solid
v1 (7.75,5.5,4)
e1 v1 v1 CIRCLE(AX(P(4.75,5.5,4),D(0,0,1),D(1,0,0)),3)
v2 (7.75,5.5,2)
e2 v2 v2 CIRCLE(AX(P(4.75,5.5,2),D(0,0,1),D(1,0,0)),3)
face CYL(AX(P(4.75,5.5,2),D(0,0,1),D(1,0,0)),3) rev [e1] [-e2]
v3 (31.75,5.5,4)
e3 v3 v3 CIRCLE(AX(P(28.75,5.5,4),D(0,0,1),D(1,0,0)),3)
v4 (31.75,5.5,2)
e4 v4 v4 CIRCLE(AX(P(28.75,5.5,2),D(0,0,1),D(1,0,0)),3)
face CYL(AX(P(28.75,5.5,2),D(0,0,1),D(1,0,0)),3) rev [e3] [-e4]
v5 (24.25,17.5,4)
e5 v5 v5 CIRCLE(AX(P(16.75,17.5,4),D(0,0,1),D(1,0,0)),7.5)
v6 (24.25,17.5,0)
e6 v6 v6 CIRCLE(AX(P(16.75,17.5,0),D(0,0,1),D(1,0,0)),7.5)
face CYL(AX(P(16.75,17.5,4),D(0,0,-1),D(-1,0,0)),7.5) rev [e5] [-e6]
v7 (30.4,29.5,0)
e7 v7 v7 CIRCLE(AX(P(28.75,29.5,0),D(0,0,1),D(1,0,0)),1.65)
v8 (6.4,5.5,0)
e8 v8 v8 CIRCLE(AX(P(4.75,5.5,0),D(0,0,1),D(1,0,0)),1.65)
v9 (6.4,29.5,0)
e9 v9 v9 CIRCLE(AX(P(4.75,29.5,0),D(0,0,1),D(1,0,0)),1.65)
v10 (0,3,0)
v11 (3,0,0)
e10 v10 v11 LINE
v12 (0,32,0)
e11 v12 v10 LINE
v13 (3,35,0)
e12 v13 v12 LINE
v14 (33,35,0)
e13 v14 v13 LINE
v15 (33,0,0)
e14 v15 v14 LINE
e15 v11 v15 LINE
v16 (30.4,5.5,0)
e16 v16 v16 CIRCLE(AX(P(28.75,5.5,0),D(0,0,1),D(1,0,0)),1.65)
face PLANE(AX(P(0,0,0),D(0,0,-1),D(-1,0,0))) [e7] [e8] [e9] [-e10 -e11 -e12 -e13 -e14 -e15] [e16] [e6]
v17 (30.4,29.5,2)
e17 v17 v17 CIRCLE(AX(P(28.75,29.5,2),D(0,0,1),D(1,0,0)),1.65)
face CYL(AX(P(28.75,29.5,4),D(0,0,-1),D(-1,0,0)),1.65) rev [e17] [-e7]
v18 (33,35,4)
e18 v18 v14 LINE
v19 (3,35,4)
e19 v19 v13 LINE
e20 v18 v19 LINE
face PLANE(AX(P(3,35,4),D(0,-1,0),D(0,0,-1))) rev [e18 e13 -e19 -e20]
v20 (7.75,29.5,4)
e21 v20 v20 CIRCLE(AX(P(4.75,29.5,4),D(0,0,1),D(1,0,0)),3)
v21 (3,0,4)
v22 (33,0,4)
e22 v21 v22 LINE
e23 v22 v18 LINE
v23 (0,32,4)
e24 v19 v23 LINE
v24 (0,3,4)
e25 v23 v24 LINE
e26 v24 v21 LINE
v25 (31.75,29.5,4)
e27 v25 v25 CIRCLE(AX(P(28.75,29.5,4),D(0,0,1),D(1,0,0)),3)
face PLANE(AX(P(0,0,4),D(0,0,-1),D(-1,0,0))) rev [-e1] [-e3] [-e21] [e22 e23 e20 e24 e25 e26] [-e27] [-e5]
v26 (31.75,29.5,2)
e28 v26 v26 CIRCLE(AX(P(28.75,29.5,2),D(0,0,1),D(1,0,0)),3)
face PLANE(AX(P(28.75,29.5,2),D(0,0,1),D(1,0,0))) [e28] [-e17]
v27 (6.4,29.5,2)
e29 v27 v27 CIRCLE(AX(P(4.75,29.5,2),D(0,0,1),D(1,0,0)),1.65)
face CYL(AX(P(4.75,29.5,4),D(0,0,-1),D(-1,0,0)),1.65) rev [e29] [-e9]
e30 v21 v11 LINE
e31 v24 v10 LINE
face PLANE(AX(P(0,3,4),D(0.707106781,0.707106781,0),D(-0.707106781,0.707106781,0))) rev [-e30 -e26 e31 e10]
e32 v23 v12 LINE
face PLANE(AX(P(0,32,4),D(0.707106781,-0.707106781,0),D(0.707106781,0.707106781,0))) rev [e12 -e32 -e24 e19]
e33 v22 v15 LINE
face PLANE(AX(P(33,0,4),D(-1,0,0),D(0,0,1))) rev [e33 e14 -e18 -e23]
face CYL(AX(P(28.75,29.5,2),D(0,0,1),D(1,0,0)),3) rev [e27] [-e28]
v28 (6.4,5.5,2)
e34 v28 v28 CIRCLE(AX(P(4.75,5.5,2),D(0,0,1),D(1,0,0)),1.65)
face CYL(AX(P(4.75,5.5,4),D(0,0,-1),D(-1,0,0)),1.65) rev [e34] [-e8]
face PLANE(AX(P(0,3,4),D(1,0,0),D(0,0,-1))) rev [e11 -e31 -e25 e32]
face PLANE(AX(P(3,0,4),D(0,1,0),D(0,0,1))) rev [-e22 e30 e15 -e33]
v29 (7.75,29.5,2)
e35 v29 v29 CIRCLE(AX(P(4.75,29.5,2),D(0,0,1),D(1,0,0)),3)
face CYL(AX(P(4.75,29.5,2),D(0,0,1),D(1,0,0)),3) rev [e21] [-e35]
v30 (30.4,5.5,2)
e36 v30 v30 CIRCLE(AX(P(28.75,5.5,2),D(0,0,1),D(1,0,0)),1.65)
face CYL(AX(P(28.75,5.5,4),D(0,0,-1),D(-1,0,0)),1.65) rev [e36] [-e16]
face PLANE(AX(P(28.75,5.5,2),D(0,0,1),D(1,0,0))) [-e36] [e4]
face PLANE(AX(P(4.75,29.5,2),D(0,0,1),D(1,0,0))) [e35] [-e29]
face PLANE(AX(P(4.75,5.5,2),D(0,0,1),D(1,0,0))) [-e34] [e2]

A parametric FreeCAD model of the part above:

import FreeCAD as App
import Part
import Sketcher

V = App.Vector
Q = App.Units.Quantity

doc = App.newDocument("Part")
body = doc.addObject("PartDesign::Body", "Body")

sketch1 = body.newObject("Sketcher::SketchObject", "Sketch")
sketch1.AttachmentSupport = (doc.getObject("XY_Plane"), [""])
sketch1.MapMode = "FlatFace"
sketch1.addGeometry([
    Part.LineSegment(V(3, 35, 0), V(0, 32, 0)),
    Part.LineSegment(V(0, 32, 0), V(0, 3, 0)),
    Part.LineSegment(V(0, 3, 0), V(3, 0, 0)),
    Part.LineSegment(V(3, 0, 0), V(33, 0, 0)),
    Part.LineSegment(V(33, 0, 0), V(33, 35, 0)),
    Part.LineSegment(V(33, 35, 0), V(3, 35, 0)),
    Part.Circle(V(28.8, 5.5, 0), V(0, 0, 1), 1.6),
    Part.Circle(V(4.8, 5.5, 0), V(0, 0, 1), 1.6),
    Part.Circle(V(16.8, 17.5, 0), V(0, 0, 1), 7.5),
    Part.Circle(V(28.8, 29.5, 0), V(0, 0, 1), 1.6),
    Part.Circle(V(4.8, 29.5, 0), V(0, 0, 1), 1.6),
], False)
sketch1.addConstraint([
    Sketcher.Constraint("Coincident", 0, 2, 1, 1),
    Sketcher.Constraint("Coincident", 1, 2, 2, 1),
    Sketcher.Constraint("Coincident", 2, 2, 3, 1),
    Sketcher.Constraint("Coincident", 3, 2, 4, 1),
    Sketcher.Constraint("Coincident", 4, 2, 5, 1),
    Sketcher.Constraint("Coincident", 5, 2, 0, 1),
    Sketcher.Constraint("Vertical", 1),
    Sketcher.Constraint("Horizontal", 3),
    Sketcher.Constraint("Vertical", 4),
    Sketcher.Constraint("Horizontal", 5),
    Sketcher.Constraint("Equal", 6, 7),
    Sketcher.Constraint("Equal", 7, 9),
    Sketcher.Constraint("Equal", 9, 10),
    Sketcher.Constraint("PointOnObject", 0, 2, -2),
    Sketcher.Constraint("PointOnObject", 2, 2, -1),
    Sketcher.Constraint("Perpendicular", 0, 2),
    Sketcher.Constraint("Horizontal", 6, 3, 7, 3),
    Sketcher.Constraint("Horizontal", 9, 3, 10, 3),
    Sketcher.Constraint("Vertical", 6, 3, 9, 3),
    Sketcher.Constraint("Vertical", 7, 3, 10, 3),
    Sketcher.Constraint("Vertical", 2, 2, 5, 2),
    Sketcher.Constraint("Equal", 0, 2),
    Sketcher.Constraint("Diameter", 8, Q("15 mm")),
    Sketcher.Constraint("Diameter", 6, Q("3.3 mm")),
    Sketcher.Constraint("DistanceX", 3, 1, 3, 2, Q("30 mm")),
    Sketcher.Constraint("DistanceY", 1, 2, 1, 1, Q("29 mm")),
    Sketcher.Constraint("DistanceY", 4, 1, 4, 2, Q("35 mm")),
    Sketcher.Constraint("DistanceX", 7, 3, 6, 3, Q("24 mm")),
    Sketcher.Constraint("DistanceX", 8, 3, 6, 3, Q("12 mm")),
    Sketcher.Constraint("DistanceY", 6, 3, 8, 3, Q("12 mm")),
    Sketcher.Constraint("DistanceY", 8, 3, 9, 3, Q("12 mm")),
    Sketcher.Constraint("DistanceY", -1, 1, 6, 3, Q("5.5 mm")),
    Sketcher.Constraint("DistanceX", -1, 1, 6, 3, Q("28.75 mm")),
])
pad1 = body.newObject("PartDesign::Pad", "Pad")
pad1.Profile = sketch1
pad1.Length = 4

sketch2 = body.newObject("Sketcher::SketchObject", "Sketch001")
sketch2.AttachmentSupport = (doc.getObject("XY_Plane"), [""])
sketch2.MapMode = "FlatFace"
sketch2.AttachmentOffset = App.Placement(V(0, 0, 4), App.Rotation())
sketch2.addGeometry([
    Part.Circle(V(4.8, 29.5, 0), V(0, 0, 1), 3),
    Part.Circle(V(28.8, 29.5, 0), V(0, 0, 1), 3),
    Part.Circle(V(4.8, 5.5, 0), V(0, 0, 1), 3),
    Part.Circle(V(28.8, 5.5, 0), V(0, 0, 1), 3),
], False)
sketch2.addConstraint([
    Sketcher.Constraint("Equal", 0, 1),
    Sketcher.Constraint("Equal", 1, 2),
    Sketcher.Constraint("Equal", 2, 3),
    Sketcher.Constraint("Horizontal", 0, 3, 1, 3),
    Sketcher.Constraint("Horizontal", 2, 3, 3, 3),
    Sketcher.Constraint("Vertical", 0, 3, 2, 3),
    Sketcher.Constraint("Vertical", 1, 3, 3, 3),
    Sketcher.Constraint("Diameter", 0, Q("6 mm")),
    Sketcher.Constraint("DistanceX", 0, 3, 1, 3, Q("24 mm")),
    Sketcher.Constraint("DistanceY", 2, 3, 0, 3, Q("24 mm")),
    Sketcher.Constraint("DistanceY", -1, 1, 0, 3, Q("29.5 mm")),
    Sketcher.Constraint("DistanceX", -1, 1, 0, 3, Q("4.75 mm")),
])
pocket1 = body.newObject("PartDesign::Pocket", "Pocket")
pocket1.Profile = sketch2
pocket1.Length = 2

doc.recompute()
